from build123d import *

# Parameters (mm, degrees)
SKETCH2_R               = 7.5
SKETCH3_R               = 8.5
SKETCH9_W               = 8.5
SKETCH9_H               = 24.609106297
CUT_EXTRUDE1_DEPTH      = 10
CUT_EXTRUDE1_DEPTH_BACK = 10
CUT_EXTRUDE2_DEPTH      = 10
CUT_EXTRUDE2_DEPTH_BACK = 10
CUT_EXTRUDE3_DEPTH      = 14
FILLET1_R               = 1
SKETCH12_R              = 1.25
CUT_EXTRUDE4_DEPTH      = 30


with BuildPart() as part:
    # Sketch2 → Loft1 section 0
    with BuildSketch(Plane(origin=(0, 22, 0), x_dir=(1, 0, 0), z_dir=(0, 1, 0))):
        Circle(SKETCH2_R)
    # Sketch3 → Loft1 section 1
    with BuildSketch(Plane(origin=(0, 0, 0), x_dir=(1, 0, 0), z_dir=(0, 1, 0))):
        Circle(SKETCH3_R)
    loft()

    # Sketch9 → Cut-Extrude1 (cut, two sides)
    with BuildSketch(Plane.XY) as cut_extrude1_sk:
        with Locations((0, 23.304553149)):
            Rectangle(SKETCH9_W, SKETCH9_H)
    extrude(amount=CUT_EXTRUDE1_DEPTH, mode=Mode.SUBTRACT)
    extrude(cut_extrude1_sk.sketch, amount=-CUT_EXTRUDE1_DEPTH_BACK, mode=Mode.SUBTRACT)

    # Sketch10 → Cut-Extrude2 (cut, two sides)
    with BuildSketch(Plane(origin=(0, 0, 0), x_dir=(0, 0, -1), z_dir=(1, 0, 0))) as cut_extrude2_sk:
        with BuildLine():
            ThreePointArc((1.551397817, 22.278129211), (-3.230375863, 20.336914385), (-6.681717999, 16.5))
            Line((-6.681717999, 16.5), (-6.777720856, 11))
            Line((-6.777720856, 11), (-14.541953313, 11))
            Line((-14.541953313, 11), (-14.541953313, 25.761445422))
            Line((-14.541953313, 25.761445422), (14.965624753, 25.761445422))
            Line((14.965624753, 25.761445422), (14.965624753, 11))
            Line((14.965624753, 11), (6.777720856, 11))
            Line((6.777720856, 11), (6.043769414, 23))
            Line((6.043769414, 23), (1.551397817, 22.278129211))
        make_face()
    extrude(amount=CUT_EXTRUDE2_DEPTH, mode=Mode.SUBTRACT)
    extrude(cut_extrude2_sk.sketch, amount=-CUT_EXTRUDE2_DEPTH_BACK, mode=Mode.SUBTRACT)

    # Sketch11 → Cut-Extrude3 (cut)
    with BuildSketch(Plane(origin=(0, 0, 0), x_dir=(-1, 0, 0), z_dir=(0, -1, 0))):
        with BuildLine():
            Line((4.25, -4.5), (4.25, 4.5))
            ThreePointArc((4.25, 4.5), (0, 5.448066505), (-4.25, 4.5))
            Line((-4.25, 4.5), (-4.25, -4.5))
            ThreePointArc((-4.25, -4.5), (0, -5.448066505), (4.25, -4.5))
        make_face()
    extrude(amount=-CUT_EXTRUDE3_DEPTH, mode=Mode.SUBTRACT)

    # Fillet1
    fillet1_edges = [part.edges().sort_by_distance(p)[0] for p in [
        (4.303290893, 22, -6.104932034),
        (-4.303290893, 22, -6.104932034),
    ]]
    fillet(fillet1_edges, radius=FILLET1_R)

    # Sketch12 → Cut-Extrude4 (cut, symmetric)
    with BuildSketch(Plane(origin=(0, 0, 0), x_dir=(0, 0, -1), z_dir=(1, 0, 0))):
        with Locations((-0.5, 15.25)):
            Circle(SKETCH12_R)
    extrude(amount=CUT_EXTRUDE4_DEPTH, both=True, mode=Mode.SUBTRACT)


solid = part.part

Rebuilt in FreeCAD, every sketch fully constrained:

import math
import FreeCAD as App
import Part
import Sketcher
Q = App.Units.Quantity


def edges_at(feature, points):
    """Names of the edges that pass closest to the given points."""
    edges = feature.Shape.Edges
    near = lambda p: min(range(len(edges)), key=lambda i: edges[i].distToShape(Part.Vertex(*p))[0])
    return sorted({f"Edge{near(p) + 1}" for p in points})


def add_polygon(sketch, points):
    """Adds a closed chain of lines whose ends are joined by coincident constraints."""
    first, n = sketch.GeometryCount, len(points)
    for a, b in zip(points, points[1:] + points[:1]):
        sketch.addGeometry(Part.LineSegment(App.Vector(*a, 0), App.Vector(*b, 0)), False)
    for i in range(n):
        sketch.addConstraint(Sketcher.Constraint("Coincident", first + i, 2, first + (i + 1) % n, 1))

doc = App.newDocument("Part")
body = doc.addObject("PartDesign::Body", "Body")

# Sketch on XZ plane
sketch1 = body.newObject("Sketcher::SketchObject", "Sketch")
sketch1.AttachmentSupport = (doc.getObject("XZ_Plane"), [""])
sketch1.MapMode = "FlatFace"
sketch1.AttachmentOffset = App.Placement(App.Vector(0, 0, -22), App.Rotation())
sketch1.addGeometry(Part.Circle(App.Vector(0, 0, 0), App.Vector(0, 0, 1), 8), False)
sketch1.addConstraint(Sketcher.Constraint("Coincident", 0, 3, -1, 1))
sketch1.addConstraint(Sketcher.Constraint("Diameter", 0, Q("15 mm")))

# Sketch on XZ plane
sketch2 = body.newObject("Sketcher::SketchObject", "Sketch001")
sketch2.AttachmentSupport = (doc.getObject("XZ_Plane"), [""])
sketch2.MapMode = "FlatFace"
sketch2.addGeometry(Part.Circle(App.Vector(0, 0, 0), App.Vector(0, 0, 1), 8), False)
sketch2.addConstraint(Sketcher.Constraint("Coincident", 0, 3, -1, 1))
sketch2.addConstraint(Sketcher.Constraint("Diameter", 0, Q("17 mm")))

additiveloft = body.newObject("PartDesign::AdditiveLoft", "AdditiveLoft")
additiveloft.Profile = sketch1
additiveloft.Sections = [sketch2]

# Sketch on XY plane
sketch3 = body.newObject("Sketcher::SketchObject", "Sketch002")
sketch3.AttachmentSupport = (doc.getObject("XY_Plane"), [""])
sketch3.MapMode = "FlatFace"
add_polygon(sketch3, [(-4, 36), (-4, 11), (4, 11), (4, 36)])  # lines 0-3
sketch3.addConstraint(Sketcher.Constraint("Vertical", 0))
sketch3.addConstraint(Sketcher.Constraint("Horizontal", 1))
sketch3.addConstraint(Sketcher.Constraint("Vertical", 2))
sketch3.addConstraint(Sketcher.Constraint("Horizontal", 3))
sketch3.addConstraint(Sketcher.Constraint("DistanceX", 1, 1, 1, 2, Q("8.5 mm")))
sketch3.addConstraint(Sketcher.Constraint("DistanceY", -1, 1, 0, 2, Q("11 mm")))
sketch3.addConstraint(Sketcher.Constraint("DistanceX", 0, 2, -1, 1, Q("4.25 mm")))
sketch3.addConstraint(Sketcher.Constraint("DistanceY", 0, 2, 0, 1, Q("24.609106 mm")))
pocket1 = body.newObject("PartDesign::Pocket", "Pocket")
pocket1.Profile = sketch3
pocket1.Type = "ThroughAll"
pocket1.Midplane = True

# Sketch on YZ plane
sketch4 = body.newObject("Sketcher::SketchObject", "Sketch003")
sketch4.AttachmentSupport = (doc.getObject("YZ_Plane"), [""])
sketch4.MapMode = "FlatFace"
sketch4.addGeometry(Part.ArcOfCircle(Part.Circle(App.Vector(10.9, -3.4, 0), App.Vector(0, 0, 1), 11.5), math.radians(9), math.radians(61)), False)
sketch4.addGeometry(Part.LineSegment(App.Vector(22.3, -1.6, 0), App.Vector(23, -6, 0)), False)
sketch4.addGeometry(Part.LineSegment(App.Vector(23, -6, 0), App.Vector(11, -6.8, 0)), False)
sketch4.addGeometry(Part.LineSegment(App.Vector(11, -6.8, 0), App.Vector(11, -15, 0)), False)
sketch4.addGeometry(Part.LineSegment(App.Vector(11, -15, 0), App.Vector(25.8, -15, 0)), False)
sketch4.addGeometry(Part.LineSegment(App.Vector(25.8, -15, 0), App.Vector(25.8, 14.5, 0)), False)
sketch4.addGeometry(Part.LineSegment(App.Vector(25.8, 14.5, 0), App.Vector(11, 14.5, 0)), False)
sketch4.addGeometry(Part.LineSegment(App.Vector(11, 14.5, 0), App.Vector(11, 6.8, 0)), False)
sketch4.addGeometry(Part.LineSegment(App.Vector(11, 6.8, 0), App.Vector(16.5, 6.7, 0)), False)
sketch4.addConstraint(Sketcher.Constraint("Tangent", 0, 1, 1, 1))
sketch4.addConstraint(Sketcher.Constraint("Coincident", 1, 2, 2, 1))
sketch4.addConstraint(Sketcher.Constraint("Coincident", 2, 2, 3, 1))
sketch4.addConstraint(Sketcher.Constraint("Coincident", 3, 2, 4, 1))
sketch4.addConstraint(Sketcher.Constraint("Coincident", 4, 2, 5, 1))
sketch4.addConstraint(Sketcher.Constraint("Coincident", 5, 2, 6, 1))
sketch4.addConstraint(Sketcher.Constraint("Coincident", 6, 2, 7, 1))
sketch4.addConstraint(Sketcher.Constraint("Coincident", 7, 2, 8, 1))
sketch4.addConstraint(Sketcher.Constraint("Coincident", 8, 2, 0, 2))
sketch4.addConstraint(Sketcher.Constraint("Vertical", 3))
sketch4.addConstraint(Sketcher.Constraint("Horizontal", 4))
sketch4.addConstraint(Sketcher.Constraint("Vertical", 5))
sketch4.addConstraint(Sketcher.Constraint("Horizontal", 6))
sketch4.addConstraint(Sketcher.Constraint("Vertical", 7))
sketch4.addConstraint(Sketcher.Constraint("Symmetric", 2, 2, 7, 2, -1))
sketch4.addConstraint(Sketcher.Constraint("Radius", 0, Q("11.5 mm")))
sketch4.addConstraint(Sketcher.Constraint("Angle", 8, Q("-1 deg")))
sketch4.addConstraint(Sketcher.Constraint("DistanceX", -1, 1, 1, 2, Q("23 mm")))
sketch4.addConstraint(Sketcher.Constraint("DistanceX", -1, 1, 2, 2, Q("11 mm")))
sketch4.addConstraint(Sketcher.Constraint("Angle", 2, Q("-176.5 deg")))
sketch4.addConstraint(Sketcher.Constraint("DistanceX", -1, 1, 8, 2, Q("16.5 mm")))
sketch4.addConstraint(Sketcher.Constraint("Distance", 1, Q("4.55 mm")))
sketch4.addConstraint(Sketcher.Constraint("DistanceY", 5, 1, 5, 2, Q("29.507578 mm")))
sketch4.addConstraint(Sketcher.Constraint("DistanceX", 4, 1, 4, 2, Q("14.761445 mm")))
sketch4.addConstraint(Sketcher.Constraint("DistanceY", 3, 2, 3, 1, Q("8.187904 mm")))
sketch4.addConstraint(Sketcher.Constraint("DistanceY", 7, 2, 7, 1, Q("7.764232 mm")))
pocket2 = body.newObject("PartDesign::Pocket", "Pocket001")
pocket2.Profile = sketch4
pocket2.Type = "ThroughAll"
pocket2.Midplane = True

# Sketch on XZ plane
sketch5 = body.newObject("Sketcher::SketchObject", "Sketch004")
sketch5.AttachmentSupport = (doc.getObject("XZ_Plane"), [""])
sketch5.MapMode = "FlatFace"
sketch5.addGeometry(Part.LineSegment(App.Vector(-4, 4, 0), App.Vector(-4, -4, 0)), False)
sketch5.addGeometry(Part.ArcOfCircle(Part.Circle(App.Vector(0, 5, 0), App.Vector(0, 0, 1), 10), math.radians(-115), math.radians(-65)), False)
sketch5.addGeometry(Part.LineSegment(App.Vector(4, -4, 0), App.Vector(4, 4, 0)), False)
sketch5.addGeometry(Part.ArcOfCircle(Part.Circle(App.Vector(0, -5, 0), App.Vector(0, 0, 1), 10), math.radians(65), math.radians(115)), False)
sketch5.addConstraint(Sketcher.Constraint("Coincident", 0, 2, 1, 1))
sketch5.addConstraint(Sketcher.Constraint("Coincident", 1, 2, 2, 1))
sketch5.addConstraint(Sketcher.Constraint("Coincident", 2, 2, 3, 1))
sketch5.addConstraint(Sketcher.Constraint("Coincident", 3, 2, 0, 1))
sketch5.addConstraint(Sketcher.Constraint("Vertical", 0))
sketch5.addConstraint(Sketcher.Constraint("Vertical", 2))
sketch5.addConstraint(Sketcher.Constraint("Equal", 1, 3))
sketch5.addConstraint(Sketcher.Constraint("Symmetric", 1, 3, 3, 3, -1, 1))
sketch5.addConstraint(Sketcher.Constraint("Symmetric", 0, 2, 1, 2, -2))
sketch5.addConstraint(Sketcher.Constraint("Radius", 1, Q("10 mm")))
sketch5.addConstraint(Sketcher.Constraint("DistanceY", 0, 2, 0, 1, Q("9 mm")))
sketch5.addConstraint(Sketcher.Constraint("DistanceX", 0, 2, 1, 2, Q("8.5 mm")))
pocket3 = body.newObject("PartDesign::Pocket", "Pocket002")
pocket3.Profile = sketch5
pocket3.Length = 14
doc.recompute()

fillet = body.newObject("PartDesign::Fillet", "Fillet")
fillet.Base = (pocket3, edges_at(pocket3, [(4.303, 22, -6.105), (-4.303, 22, -6.105)]))
fillet.Radius = 1

# Sketch on YZ plane
sketch6 = body.newObject("Sketcher::SketchObject", "Sketch005")
sketch6.AttachmentSupport = (doc.getObject("YZ_Plane"), [""])
sketch6.MapMode = "FlatFace"
sketch6.addGeometry(Part.Circle(App.Vector(15.2, 0.5, 0), App.Vector(0, 0, 1), 1.2), False)
sketch6.addConstraint(Sketcher.Constraint("Diameter", 0, Q("2.5 mm")))
sketch6.addConstraint(Sketcher.Constraint("DistanceY", -1, 1, 0, 3, Q("0.5 mm")))
sketch6.addConstraint(Sketcher.Constraint("DistanceX", -1, 1, 0, 3, Q("15.25 mm")))
pocket4 = body.newObject("PartDesign::Pocket", "Pocket003")
pocket4.Profile = sketch6
pocket4.Length = 60
pocket4.Midplane = True

doc.recompute()
